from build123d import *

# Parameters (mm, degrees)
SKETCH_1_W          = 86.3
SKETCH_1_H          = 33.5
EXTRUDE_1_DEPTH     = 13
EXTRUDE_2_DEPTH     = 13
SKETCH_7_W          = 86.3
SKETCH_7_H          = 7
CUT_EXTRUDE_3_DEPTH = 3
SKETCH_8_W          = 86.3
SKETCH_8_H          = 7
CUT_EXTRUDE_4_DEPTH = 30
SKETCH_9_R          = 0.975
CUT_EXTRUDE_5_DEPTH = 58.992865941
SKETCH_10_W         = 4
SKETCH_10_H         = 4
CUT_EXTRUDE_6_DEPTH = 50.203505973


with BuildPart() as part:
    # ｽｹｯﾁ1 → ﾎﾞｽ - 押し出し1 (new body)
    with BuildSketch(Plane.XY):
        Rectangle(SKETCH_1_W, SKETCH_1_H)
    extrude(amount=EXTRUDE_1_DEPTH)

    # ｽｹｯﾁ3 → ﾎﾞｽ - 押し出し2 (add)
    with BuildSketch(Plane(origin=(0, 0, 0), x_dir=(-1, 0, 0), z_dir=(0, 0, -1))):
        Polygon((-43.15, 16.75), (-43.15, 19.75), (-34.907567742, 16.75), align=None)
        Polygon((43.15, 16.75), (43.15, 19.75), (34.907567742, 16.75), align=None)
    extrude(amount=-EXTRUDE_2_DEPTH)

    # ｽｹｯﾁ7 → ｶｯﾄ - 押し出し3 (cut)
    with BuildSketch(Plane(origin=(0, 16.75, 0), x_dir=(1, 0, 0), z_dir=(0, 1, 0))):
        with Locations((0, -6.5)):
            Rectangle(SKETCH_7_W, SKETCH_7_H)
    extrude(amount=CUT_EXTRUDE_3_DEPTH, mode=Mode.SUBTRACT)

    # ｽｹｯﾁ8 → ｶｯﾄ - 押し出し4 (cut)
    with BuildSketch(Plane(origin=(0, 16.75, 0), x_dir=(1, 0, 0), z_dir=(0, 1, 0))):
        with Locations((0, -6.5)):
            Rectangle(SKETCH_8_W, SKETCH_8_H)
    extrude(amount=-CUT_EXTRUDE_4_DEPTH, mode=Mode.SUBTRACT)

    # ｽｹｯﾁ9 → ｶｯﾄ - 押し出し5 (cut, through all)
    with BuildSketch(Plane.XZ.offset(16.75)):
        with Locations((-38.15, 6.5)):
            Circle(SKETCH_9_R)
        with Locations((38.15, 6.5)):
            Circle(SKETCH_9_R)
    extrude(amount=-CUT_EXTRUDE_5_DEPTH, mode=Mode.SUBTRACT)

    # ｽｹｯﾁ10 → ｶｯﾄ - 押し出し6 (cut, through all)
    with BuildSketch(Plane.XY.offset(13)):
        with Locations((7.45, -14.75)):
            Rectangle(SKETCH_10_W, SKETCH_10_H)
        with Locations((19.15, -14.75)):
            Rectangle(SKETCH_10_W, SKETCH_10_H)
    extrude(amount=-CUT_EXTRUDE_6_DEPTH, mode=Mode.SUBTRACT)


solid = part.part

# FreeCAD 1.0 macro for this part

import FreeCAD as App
import Part
import Sketcher
from FreeCAD import Vector
Q = App.Units.Quantity

doc = App.newDocument("Part")
body = doc.addObject("PartDesign::Body", "Body")

# Sketch on XY plane
sketch1 = body.newObject("Sketcher::SketchObject", "Sketch")
sketch1.AttachmentSupport = (doc.getObject("XY_Plane"), [""])
sketch1.MapMode = "FlatFace"
sketch1.addGeometry(Part.LineSegment(Vector(-43, 17, 0), Vector(-43, -17, 0)), False)
sketch1.addGeometry(Part.LineSegment(Vector(-43, -17, 0), Vector(43, -17, 0)), False)
sketch1.addGeometry(Part.LineSegment(Vector(43, -17, 0), Vector(43, 17, 0)), False)
sketch1.addGeometry(Part.LineSegment(Vector(43, 17, 0), Vector(-43, 17, 0)), False)
sketch1.addConstraint(Sketcher.Constraint("Coincident", 0, 2, 1, 1))
sketch1.addConstraint(Sketcher.Constraint("Coincident", 1, 2, 2, 1))
sketch1.addConstraint(Sketcher.Constraint("Coincident", 2, 2, 3, 1))
sketch1.addConstraint(Sketcher.Constraint("Coincident", 3, 2, 0, 1))
sketch1.addConstraint(Sketcher.Constraint("Vertical", 0))
sketch1.addConstraint(Sketcher.Constraint("Horizontal", 1))
sketch1.addConstraint(Sketcher.Constraint("Vertical", 2))
sketch1.addConstraint(Sketcher.Constraint("Horizontal", 3))
sketch1.addConstraint(Sketcher.Constraint("Symmetric", 0, 2, 2, 2, -1, 1))
sketch1.addConstraint(Sketcher.Constraint("DistanceX", 1, 1, 1, 2, Q("86.3 mm")))
sketch1.addConstraint(Sketcher.Constraint("DistanceY", 0, 2, 0, 1, Q("33.5 mm")))
pad1 = body.newObject("PartDesign::Pad", "Pad")
pad1.Profile = sketch1
pad1.Length = 13

# Sketch on XY plane
sketch2 = body.newObject("Sketcher::SketchObject", "Sketch001")
sketch2.AttachmentSupport = (doc.getObject("XY_Plane"), [""])
sketch2.MapMode = "FlatFace"
sketch2.addGeometry(Part.LineSegment(Vector(43.1, 19.8, 0), Vector(43.1, 16.8, 0)), False)
sketch2.addGeometry(Part.LineSegment(Vector(43.1, 16.8, 0), Vector(34.9, 16.8, 0)), False)
sketch2.addGeometry(Part.LineSegment(Vector(34.9, 16.8, 0), Vector(43.1, 19.8, 0)), False)
sketch2.addGeometry(Part.LineSegment(Vector(-43.1, 16.8, 0), Vector(-43.1, 19.8, 0)), False)
sketch2.addGeometry(Part.LineSegment(Vector(-43.1, 19.8, 0), Vector(-34.9, 16.8, 0)), False)
sketch2.addGeometry(Part.LineSegment(Vector(-34.9, 16.8, 0), Vector(-43.1, 16.8, 0)), False)
sketch2.addConstraint(Sketcher.Constraint("Coincident", 0, 2, 1, 1))
sketch2.addConstraint(Sketcher.Constraint("Coincident", 1, 2, 2, 1))
sketch2.addConstraint(Sketcher.Constraint("Coincident", 2, 2, 0, 1))
sketch2.addConstraint(Sketcher.Constraint("Coincident", 3, 2, 4, 1))
sketch2.addConstraint(Sketcher.Constraint("Coincident", 4, 2, 5, 1))
sketch2.addConstraint(Sketcher.Constraint("Coincident", 5, 2, 3, 1))
sketch2.addConstraint(Sketcher.Constraint("Vertical", 0))
sketch2.addConstraint(Sketcher.Constraint("Horizontal", 1))
sketch2.addConstraint(Sketcher.Constraint("Vertical", 3))
sketch2.addConstraint(Sketcher.Constraint("Horizontal", 5))
sketch2.addConstraint(Sketcher.Constraint("Symmetric", 2, 2, 3, 2, -2))
sketch2.addConstraint(Sketcher.Constraint("Symmetric", 1, 2, 4, 2, -2))
sketch2.addConstraint(Sketcher.Constraint("DistanceY", 0, 2, 0, 1, Q("3 mm")))
sketch2.addConstraint(Sketcher.Constraint("Angle", 2, Q("20 deg")))
sketch2.addConstraint(Sketcher.Constraint("DistanceX", 3, 2, 2, 2, Q("86.3 mm")))
sketch2.addConstraint(Sketcher.Constraint("DistanceY", -1, 1, 0, 2, Q("16.75 mm")))
pad2 = body.newObject("PartDesign::Pad", "Pad001")
pad2.Profile = sketch2
pad2.Length = 13

# Sketch on XZ plane
sketch3 = body.newObject("Sketcher::SketchObject", "Sketch002")
sketch3.AttachmentSupport = (doc.getObject("XZ_Plane"), [""])
sketch3.MapMode = "FlatFace"
sketch3.AttachmentOffset = App.Placement(Vector(0, 0, -16.75), App.Rotation())
sketch3.addGeometry(Part.LineSegment(Vector(-43, 3, 0), Vector(-43, 10, 0)), False)
sketch3.addGeometry(Part.LineSegment(Vector(-43, 10, 0), Vector(43, 10, 0)), False)
sketch3.addGeometry(Part.LineSegment(Vector(43, 10, 0), Vector(43, 3, 0)), False)
sketch3.addGeometry(Part.LineSegment(Vector(43, 3, 0), Vector(-43, 3, 0)), False)
sketch3.addConstraint(Sketcher.Constraint("Coincident", 0, 2, 1, 1))
sketch3.addConstraint(Sketcher.Constraint("Coincident", 1, 2, 2, 1))
sketch3.addConstraint(Sketcher.Constraint("Coincident", 2, 2, 3, 1))
sketch3.addConstraint(Sketcher.Constraint("Coincident", 3, 2, 0, 1))
sketch3.addConstraint(Sketcher.Constraint("Vertical", 0))
sketch3.addConstraint(Sketcher.Constraint("Horizontal", 1))
sketch3.addConstraint(Sketcher.Constraint("Vertical", 2))
sketch3.addConstraint(Sketcher.Constraint("Horizontal", 3))
sketch3.addConstraint(Sketcher.Constraint("DistanceY", 0, 1, 0, 2, Q("7 mm")))
sketch3.addConstraint(Sketcher.Constraint("DistanceX", 1, 1, 1, 2, Q("86.3 mm")))
sketch3.addConstraint(Sketcher.Constraint("DistanceY", -1, 1, 0, 2, Q("10 mm")))
sketch3.addConstraint(Sketcher.Constraint("DistanceX", 0, 2, -1, 1, Q("43.15 mm")))
pocket1 = body.newObject("PartDesign::Pocket", "Pocket")
pocket1.Profile = sketch3
pocket1.Length = 3

# Sketch on XZ plane
sketch4 = body.newObject("Sketcher::SketchObject", "Sketch003")
sketch4.AttachmentSupport = (doc.getObject("XZ_Plane"), [""])
sketch4.MapMode = "FlatFace"
sketch4.AttachmentOffset = App.Placement(Vector(0, 0, -16.75), App.Rotation())
sketch4.addGeometry(Part.LineSegment(Vector(-43, 3, 0), Vector(-43, 10, 0)), False)
sketch4.addGeometry(Part.LineSegment(Vector(-43, 10, 0), Vector(43, 10, 0)), False)
sketch4.addGeometry(Part.LineSegment(Vector(43, 10, 0), Vector(43, 3, 0)), False)
sketch4.addGeometry(Part.LineSegment(Vector(43, 3, 0), Vector(-43, 3, 0)), False)
sketch4.addConstraint(Sketcher.Constraint("Coincident", 0, 2, 1, 1))
sketch4.addConstraint(Sketcher.Constraint("Coincident", 1, 2, 2, 1))
sketch4.addConstraint(Sketcher.Constraint("Coincident", 2, 2, 3, 1))
sketch4.addConstraint(Sketcher.Constraint("Coincident", 3, 2, 0, 1))
sketch4.addConstraint(Sketcher.Constraint("Vertical", 0))
sketch4.addConstraint(Sketcher.Constraint("Horizontal", 1))
sketch4.addConstraint(Sketcher.Constraint("Vertical", 2))
sketch4.addConstraint(Sketcher.Constraint("Horizontal", 3))
sketch4.addConstraint(Sketcher.Constraint("DistanceY", 0, 1, 0, 2, Q("7 mm")))
sketch4.addConstraint(Sketcher.Constraint("DistanceX", 1, 1, 1, 2, Q("86.3 mm")))
sketch4.addConstraint(Sketcher.Constraint("DistanceY", -1, 1, 0, 2, Q("10 mm")))
sketch4.addConstraint(Sketcher.Constraint("DistanceX", 0, 2, -1, 1, Q("43.15 mm")))
pocket2 = body.newObject("PartDesign::Pocket", "Pocket001")
pocket2.Profile = sketch4
pocket2.Length = 30
pocket2.Reversed = True

# Sketch on XZ plane
sketch5 = body.newObject("Sketcher::SketchObject", "Sketch004")
sketch5.AttachmentSupport = (doc.getObject("XZ_Plane"), [""])
sketch5.MapMode = "FlatFace"
sketch5.AttachmentOffset = App.Placement(Vector(0, 0, 16.75), App.Rotation())
sketch5.addGeometry(Part.Circle(Vector(-38.1, 6.5, 0), Vector(0, 0, 1), 1), False)
sketch5.addGeometry(Part.Circle(Vector(38.1, 6.5, 0), Vector(0, 0, 1), 1), False)
sketch5.addConstraint(Sketcher.Constraint("Equal", 0, 1))
sketch5.addConstraint(Sketcher.Constraint("Symmetric", 0, 3, 1, 3, -2))
sketch5.addConstraint(Sketcher.Constraint("Diameter", 0, Q("1.95 mm")))
sketch5.addConstraint(Sketcher.Constraint("DistanceY", -1, 1, 0, 3, Q("6.5 mm")))
sketch5.addConstraint(Sketcher.Constraint("DistanceX", 0, 3, 1, 3, Q("76.3 mm")))
pocket3 = body.newObject("PartDesign::Pocket", "Pocket002")
pocket3.Profile = sketch5
pocket3.Type = "ThroughAll"

# Sketch on XY plane
sketch6 = body.newObject("Sketcher::SketchObject", "Sketch005")
sketch6.AttachmentSupport = (doc.getObject("XY_Plane"), [""])
sketch6.MapMode = "FlatFace"
sketch6.AttachmentOffset = App.Placement(Vector(0, 0, 13), App.Rotation())
sketch6.addGeometry(Part.LineSegment(Vector(5.5, -12.8, 0), Vector(5.5, -16.8, 0)), False)
sketch6.addGeometry(Part.LineSegment(Vector(5.5, -16.8, 0), Vector(9.4, -16.8, 0)), False)
sketch6.addGeometry(Part.LineSegment(Vector(9.4, -16.8, 0), Vector(9.4, -12.8, 0)), False)
sketch6.addGeometry(Part.LineSegment(Vector(9.4, -12.8, 0), Vector(5.5, -12.8, 0)), False)
sketch6.addGeometry(Part.LineSegment(Vector(17.1, -12.8, 0), Vector(17.1, -16.8, 0)), False)
sketch6.addGeometry(Part.LineSegment(Vector(17.1, -16.8, 0), Vector(21.1, -16.8, 0)), False)
sketch6.addGeometry(Part.LineSegment(Vector(21.1, -16.8, 0), Vector(21.1, -12.8, 0)), False)
sketch6.addGeometry(Part.LineSegment(Vector(21.1, -12.8, 0), Vector(17.1, -12.8, 0)), False)
sketch6.addConstraint(Sketcher.Constraint("Coincident", 0, 2, 1, 1))
sketch6.addConstraint(Sketcher.Constraint("Coincident", 1, 2, 2, 1))
sketch6.addConstraint(Sketcher.Constraint("Coincident", 2, 2, 3, 1))
sketch6.addConstraint(Sketcher.Constraint("Coincident", 3, 2, 0, 1))
sketch6.addConstraint(Sketcher.Constraint("Coincident", 4, 2, 5, 1))
sketch6.addConstraint(Sketcher.Constraint("Coincident", 5, 2, 6, 1))
sketch6.addConstraint(Sketcher.Constraint("Coincident", 6, 2, 7, 1))
sketch6.addConstraint(Sketcher.Constraint("Coincident", 7, 2, 4, 1))
sketch6.addConstraint(Sketcher.Constraint("Vertical", 0))
sketch6.addConstraint(Sketcher.Constraint("Horizontal", 1))
sketch6.addConstraint(Sketcher.Constraint("Vertical", 2))
sketch6.addConstraint(Sketcher.Constraint("Horizontal", 3))
sketch6.addConstraint(Sketcher.Constraint("Vertical", 4))
sketch6.addConstraint(Sketcher.Constraint("Horizontal", 5))
sketch6.addConstraint(Sketcher.Constraint("Vertical", 6))
sketch6.addConstraint(Sketcher.Constraint("Horizontal", 7))
sketch6.addConstraint(Sketcher.Constraint("Horizontal", 1, 2, 4, 2))
sketch6.addConstraint(Sketcher.Constraint("Horizontal", 3, 2, 6, 2))
sketch6.addConstraint(Sketcher.Constraint("Equal", 3, 5))
sketch6.addConstraint(Sketcher.Constraint("Equal", 7, 0))
sketch6.addConstraint(Sketcher.Constraint("DistanceX", 1, 1, 1, 2, Q("4 mm")))
sketch6.addConstraint(Sketcher.Constraint("DistanceX", 1, 2, 4, 2, Q("7.7 mm")))
sketch6.addConstraint(Sketcher.Constraint("DistanceX", -1, 1, 0, 2, Q("5.45 mm")))
sketch6.addConstraint(Sketcher.Constraint("DistanceY", 0, 2, -1, 1, Q("16.75 mm")))
pocket4 = body.newObject("PartDesign::Pocket", "Pocket003")
pocket4.Profile = sketch6
pocket4.Type = "ThroughAll"

doc.recompute()
